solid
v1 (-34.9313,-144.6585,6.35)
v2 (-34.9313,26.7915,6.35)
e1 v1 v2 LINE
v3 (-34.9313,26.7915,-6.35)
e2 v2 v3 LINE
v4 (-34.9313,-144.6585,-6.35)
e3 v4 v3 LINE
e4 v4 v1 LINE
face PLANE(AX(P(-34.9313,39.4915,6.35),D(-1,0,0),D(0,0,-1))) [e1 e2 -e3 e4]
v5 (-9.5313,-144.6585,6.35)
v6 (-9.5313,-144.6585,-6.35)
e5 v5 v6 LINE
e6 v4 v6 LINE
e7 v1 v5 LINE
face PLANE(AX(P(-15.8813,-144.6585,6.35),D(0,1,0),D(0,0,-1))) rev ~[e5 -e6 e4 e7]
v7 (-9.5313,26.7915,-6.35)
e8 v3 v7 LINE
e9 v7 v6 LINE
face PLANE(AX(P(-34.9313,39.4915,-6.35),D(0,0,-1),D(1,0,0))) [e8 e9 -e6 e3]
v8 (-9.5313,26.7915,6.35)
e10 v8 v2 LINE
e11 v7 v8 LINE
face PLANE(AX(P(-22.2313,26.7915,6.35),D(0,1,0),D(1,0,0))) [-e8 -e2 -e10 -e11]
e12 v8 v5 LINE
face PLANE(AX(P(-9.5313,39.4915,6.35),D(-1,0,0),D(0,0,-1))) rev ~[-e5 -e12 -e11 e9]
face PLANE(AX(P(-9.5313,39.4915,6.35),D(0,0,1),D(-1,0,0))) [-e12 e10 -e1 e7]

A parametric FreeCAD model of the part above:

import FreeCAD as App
import Part
import Sketcher

V = App.Vector
Q = App.Units.Quantity


def add_polygon(sketch, points):
    """Adds a closed chain of lines whose ends are joined by coincident constraints."""
    first, n = sketch.GeometryCount, len(points)
    for a, b in zip(points, points[1:] + points[:1]):
        sketch.addGeometry(Part.LineSegment(App.Vector(*a, 0), App.Vector(*b, 0)), False)
    for i in range(n):
        sketch.addConstraint(Sketcher.Constraint("Coincident", first + i, 2, first + (i + 1) % n, 1))

doc = App.newDocument("Part")
body = doc.addObject("PartDesign::Body", "Body")

sketch1 = body.newObject("Sketcher::SketchObject", "Sketch")
sketch1.AttachmentSupport = (doc.getObject("XY_Plane"), [""])
sketch1.MapMode = "FlatFace"
add_polygon(sketch1, [(-28.5813, 39.4915), (-28.5813, 26.7915), (-41.2813, 26.7915), (-41.2813, 14.0915), (-28.5813, 14.0915), (-28.5813, -131.9585), (-41.2813, -131.9585), (-41.2813, -144.6585), (-28.5813, -144.6585), (-28.5813, -154.1835), (116.1987, -154.1835), (116.1987, -144.6585), (128.8987, -144.6585), (128.8987, -131.9585), (116.1987, -131.9585), (116.1987, 14.0915), (128.8987, 14.0915), (128.8987, 26.7915), (116.1987, 26.7915), (116.1987, 39.4915)])
sketch1.addGeometry(Part.Circle(V(-34.9313, -138.3085, 0), V(0, 0, 1), 1.9812), False)
sketch1.addGeometry(Part.Circle(V(122.5487, -138.3085, 0), V(0, 0, 1), 1.9812), False)
add_polygon(sketch1, [(-22.2313, -151.0085), (-22.2313, 26.7915), (-22.2313, 33.1415), (15.8687, 33.1415), (15.8687, 26.7915), (22.2187, 26.7915), (22.2187, 33.1415), (65.3987, 33.1415), (65.3987, 26.7915), (71.7487, 26.7915), (71.7487, 33.1415), (109.8487, 33.1415), (109.8487, -151.0085), (71.7487, -151.0085), (71.7487, -144.6585), (65.3987, -144.6585), (65.3987, -151.0085), (22.2187, -151.0085), (22.2187, -144.6585), (15.8687, -144.6585), (15.8687, -151.0085)])
sketch1.addGeometry(Part.Circle(V(-34.9313, 20.4415, 0), V(0, 0, 1), 1.9812), False)
sketch1.addGeometry(Part.Circle(V(122.5487, 20.4415, 0), V(0, 0, 1), 1.9812), False)
sketch1.addConstraint([
    Sketcher.Constraint("Vertical", 0),
    Sketcher.Constraint("Horizontal", 1),
    Sketcher.Constraint("Vertical", 2),
    Sketcher.Constraint("Horizontal", 3),
    Sketcher.Constraint("Vertical", 4),
    Sketcher.Constraint("Horizontal", 5),
    Sketcher.Constraint("Vertical", 6),
    Sketcher.Constraint("Horizontal", 7),
    Sketcher.Constraint("Vertical", 8),
    Sketcher.Constraint("Horizontal", 9),
    Sketcher.Constraint("Vertical", 10),
    Sketcher.Constraint("Horizontal", 11),
    Sketcher.Constraint("Vertical", 12),
    Sketcher.Constraint("Horizontal", 13),
    Sketcher.Constraint("Vertical", 14),
    Sketcher.Constraint("Horizontal", 15),
    Sketcher.Constraint("Vertical", 16),
    Sketcher.Constraint("Horizontal", 17),
    Sketcher.Constraint("Vertical", 18),
    Sketcher.Constraint("Horizontal", 19),
    Sketcher.Constraint("Vertical", 22),
    Sketcher.Constraint("Vertical", 23),
    Sketcher.Constraint("Horizontal", 24),
    Sketcher.Constraint("Vertical", 25),
    Sketcher.Constraint("Horizontal", 26),
    Sketcher.Constraint("Vertical", 27),
    Sketcher.Constraint("Horizontal", 28),
    Sketcher.Constraint("Vertical", 29),
    Sketcher.Constraint("Horizontal", 30),
    Sketcher.Constraint("Vertical", 31),
    Sketcher.Constraint("Horizontal", 32),
    Sketcher.Constraint("Vertical", 33),
    Sketcher.Constraint("Horizontal", 34),
    Sketcher.Constraint("Vertical", 35),
    Sketcher.Constraint("Horizontal", 36),
    Sketcher.Constraint("Vertical", 37),
    Sketcher.Constraint("Horizontal", 38),
    Sketcher.Constraint("Vertical", 39),
    Sketcher.Constraint("Horizontal", 40),
    Sketcher.Constraint("Vertical", 41),
    Sketcher.Constraint("Horizontal", 42),
    Sketcher.Constraint("Equal", 20, 21),
    Sketcher.Constraint("Equal", 21, 43),
    Sketcher.Constraint("Equal", 43, 44),
    Sketcher.Constraint("Horizontal", 20, 3, 21, 3),
    Sketcher.Constraint("Horizontal", 43, 3, 44, 3),
    Sketcher.Constraint("Horizontal", 7, 2, 10, 2),
    Sketcher.Constraint("Horizontal", 5, 2, 12, 2),
    Sketcher.Constraint("Horizontal", 3, 2, 14, 2),
    Sketcher.Constraint("Horizontal", 1, 2, 16, 2),
    Sketcher.Constraint("Horizontal", 17, 2, 22, 2),
    Sketcher.Constraint("Horizontal", 22, 2, 25, 2),
    Sketcher.Constraint("Horizontal", 24, 2, 27, 2),
    Sketcher.Constraint("Horizontal", 26, 2, 29, 2),
    Sketcher.Constraint("Horizontal", 28, 2, 31, 2),
    Sketcher.Constraint("Horizontal", 11, 2, 35, 2),
    Sketcher.Constraint("Horizontal", 34, 2, 37, 2),
    Sketcher.Constraint("Horizontal", 36, 2, 39, 2),
    Sketcher.Constraint("Horizontal", 38, 2, 41, 2),
    Sketcher.Constraint("Vertical", 20, 3, 43, 3),
    Sketcher.Constraint("Vertical", 21, 3, 44, 3),
    Sketcher.Constraint("Vertical", 0, 2, 3, 2),
    Sketcher.Constraint("Vertical", 2, 2, 5, 2),
    Sketcher.Constraint("Vertical", 4, 2, 7, 2),
    Sketcher.Constraint("Vertical", 10, 2, 13, 2),
    Sketcher.Constraint("Vertical", 12, 2, 15, 2),
    Sketcher.Constraint("Vertical", 14, 2, 17, 2),
    Sketcher.Constraint("Vertical", 31, 2, 34, 2),
    Sketcher.Constraint("Vertical", 29, 2, 36, 2),
    Sketcher.Constraint("Vertical", 27, 2, 38, 2),
    Sketcher.Constraint("Vertical", 25, 2, 40, 2),
    Sketcher.Constraint("Equal", 7, 11),
    Sketcher.Constraint("Equal", 26, 30),
    Sketcher.Constraint("Equal", 24, 32),
    Sketcher.Constraint("Equal", 17, 0),
    Sketcher.Constraint("Equal", 0, 2),
    Sketcher.Constraint("Equal", 2, 6),
    Sketcher.Constraint("Equal", 40, 23),
    Sketcher.Constraint("Equal", 31, 35),
    Sketcher.Constraint("Diameter", 20, Q("0.156 in")),
    Sketcher.Constraint("DistanceX", 1, 2, 1, 1, Q("0.5 in")),
    Sketcher.Constraint("DistanceX", 9, 1, 9, 2, Q("5.7 in")),
    Sketcher.Constraint("DistanceX", 24, 1, 24, 2, Q("1.5 in")),
    Sketcher.Constraint("DistanceX", 26, 1, 26, 2, Q("0.25 in")),
    Sketcher.Constraint("DistanceY", 4, 2, 4, 1, Q("5.75 in")),
    Sketcher.Constraint("DistanceX", 43, 3, 22, 2, Q("0.5 in")),
    Sketcher.Constraint("DistanceY", 43, 3, 23, 2, Q("0.5 in")),
    Sketcher.Constraint("DistanceX", 32, 2, 44, 3, Q("0.5 in")),
    Sketcher.Constraint("DistanceY", 33, 2, 21, 3, Q("0.5 in")),
    Sketcher.Constraint("DistanceY", 8, 2, 8, 1, Q("0.375 in")),
    Sketcher.Constraint("DistanceX", 43, 3, 0, 2, Q("0.25 in")),
    Sketcher.Constraint("DistanceX", 9, 2, 21, 3, Q("0.25 in")),
    Sketcher.Constraint("DistanceX", 20, 3, -1, 1, 34.9313),
    Sketcher.Constraint("DistanceY", 20, 3, -1, 1, 138.3085),
])
pad1 = body.newObject("PartDesign::Pad", "Pad")
pad1.Profile = sketch1
pad1.Length = Q("0.25 in")

sketch2 = body.newObject("Sketcher::SketchObject", "Sketch001")
sketch2.AttachmentSupport = (doc.getObject("XZ_Plane"), [""])
sketch2.MapMode = "FlatFace"
sketch2.AttachmentOffset = App.Placement(V(0, 0, 154.1835), App.Rotation())
add_polygon(sketch2, [(116.1987, 0), (116.1987, 6.35), (-28.5813, 6.35), (-28.5813, 0)])
sketch2.addConstraint([
    Sketcher.Constraint("Vertical", 0),
    Sketcher.Constraint("Horizontal", 1),
    Sketcher.Constraint("Vertical", 2),
    Sketcher.Constraint("Horizontal", 3),
    Sketcher.Constraint("PointOnObject", 2, 2, -1),
    Sketcher.Constraint("DistanceX", 1, 2, 1, 1, Q("5.7 in")),
    Sketcher.Constraint("DistanceY", 0, 1, 0, 2, Q("0.25 in")),
    Sketcher.Constraint("DistanceX", -1, 1, 0, 2, 116.1987),
])
pad2 = body.newObject("PartDesign::Pad", "Pad001")
pad2.Profile = sketch2
pad2.Length = Q("0.125 in")

sketch3 = body.newObject("Sketcher::SketchObject", "Sketch002")
sketch3.AttachmentSupport = (doc.getObject("XY_Plane"), [""])
sketch3.MapMode = "FlatFace"
sketch3.AttachmentOffset = App.Placement(V(0, 0, 0.25 * 25.4), App.Rotation())
add_polygon(sketch3, [(-28.5813, -131.9585), (-28.5813, 14.0915), (-41.2813, 14.0915), (-41.2813, -131.9585)])
add_polygon(sketch3, [(116.1987, 14.0915), (116.1987, -131.9585), (128.8987, -131.9585), (128.8987, 14.0915)])
sketch3.addConstraint([
    Sketcher.Constraint("Vertical", 0),
    Sketcher.Constraint("Horizontal", 1),
    Sketcher.Constraint("Vertical", 2),
    Sketcher.Constraint("Horizontal", 3),
    Sketcher.Constraint("Vertical", 4),
    Sketcher.Constraint("Horizontal", 5),
    Sketcher.Constraint("Vertical", 6),
    Sketcher.Constraint("Horizontal", 7),
    Sketcher.Constraint("Horizontal", 3, 2, 4, 2),
    Sketcher.Constraint("Horizontal", 1, 2, 6, 2),
    Sketcher.Constraint("Equal", 3, 5),
    Sketcher.Constraint("DistanceX", 1, 2, 1, 1, Q("0.5 in")),
    Sketcher.Constraint("DistanceY", 0, 1, 0, 2, Q("5.75 in")),
    Sketcher.Constraint("DistanceX", 3, 2, 4, 2, Q("5.7 in")),
    Sketcher.Constraint("DistanceX", 0, 2, -1, 1, 28.5813),
    Sketcher.Constraint("DistanceY", -1, 1, 0, 2, 14.0915),
])
pad3 = body.newObject("PartDesign::Pad", "Pad002")
pad3.Profile = sketch3
pad3.Length = Q("0.25 in")
pad3.Reversed = True

sketch4 = body.newObject("Sketcher::SketchObject", "Sketch003")
sketch4.AttachmentSupport = (doc.getObject("XY_Plane"), [""])
sketch4.MapMode = "FlatFace"
sketch4.AttachmentOffset = App.Placement(V(0, 0, 0.25 * 25.4), App.Rotation())
add_polygon(sketch4, [(-41.2813, -157.3585), (-28.5813, -157.3585), (-28.5813, -151.0085), (-41.2813, -151.0085)])
add_polygon(sketch4, [(116.1987, -151.0085), (116.1987, -157.3585), (128.8987, -157.3585), (128.8987, -151.0085)])
add_polygon(sketch4, [(109.8487, 20.4415), (109.8487, 26.7915), (-22.2313, 26.7915), (-22.2313, 20.4415)])
add_polygon(sketch4, [(109.8487, -144.6585), (109.8487, -138.3085), (-22.2313, -138.3085), (-22.2313, -144.6585)])
sketch4.addConstraint([
    Sketcher.Constraint("Horizontal", 0),
    Sketcher.Constraint("Vertical", 1),
    Sketcher.Constraint("Horizontal", 2),
    Sketcher.Constraint("Vertical", 3),
    Sketcher.Constraint("Vertical", 4),
    Sketcher.Constraint("Horizontal", 5),
    Sketcher.Constraint("Vertical", 6),
    Sketcher.Constraint("Horizontal", 7),
    Sketcher.Constraint("Vertical", 8),
    Sketcher.Constraint("Horizontal", 9),
    Sketcher.Constraint("Vertical", 10),
    Sketcher.Constraint("Horizontal", 11),
    Sketcher.Constraint("Vertical", 12),
    Sketcher.Constraint("Horizontal", 13),
    Sketcher.Constraint("Vertical", 14),
    Sketcher.Constraint("Horizontal", 15),
    Sketcher.Constraint("Horizontal", 3, 2, 4, 2),
    Sketcher.Constraint("Horizontal", 2, 2, 6, 2),
    Sketcher.Constraint("Vertical", 11, 2, 12, 2),
    Sketcher.Constraint("Vertical", 10, 2, 13, 2),
    Sketcher.Constraint("Equal", 2, 5),
    Sketcher.Constraint("Equal", 6, 8),
    Sketcher.Constraint("Equal", 10, 12),
    Sketcher.Constraint("DistanceX", 0, 1, 0, 2, Q("0.5 in")),
    Sketcher.Constraint("DistanceX", 9, 2, 9, 1, Q("5.2 in")),
    Sketcher.Constraint("DistanceY", 7, 2, 8, 2, Q("7 in")),
    Sketcher.Constraint("DistanceY", 1, 1, 1, 2, Q("0.25 in")),
    Sketcher.Constraint("DistanceX", 0, 2, 4, 2, Q("5.7 in")),
    Sketcher.Constraint("DistanceY", 7, 2, 12, 2, Q("0.5 in")),
    Sketcher.Constraint("DistanceX", 8, 2, 7, 2, Q("0.25 in")),
    Sketcher.Constraint("DistanceX", 0, 2, -1, 1, 28.5813),
    Sketcher.Constraint("DistanceY", 0, 2, -1, 1, 157.3585),
])
pad4 = body.newObject("PartDesign::Pad", "Pad003")
pad4.Profile = sketch4
pad4.Length = Q("0.25 in")
pad4.Reversed = True

sketch5 = body.newObject("Sketcher::SketchObject", "Sketch004")
sketch5.AttachmentSupport = (doc.getObject("XY_Plane"), [""])
sketch5.MapMode = "FlatFace"
sketch5.AttachmentOffset = App.Placement(V(0, 0, 0.25 * 25.4), App.Rotation())
add_polygon(sketch5, [(-41.2813, 33.1415), (-28.5813, 33.1415), (-28.5813, 39.4915), (-41.2813, 39.4915)])
add_polygon(sketch5, [(128.8987, 39.4915), (116.1987, 39.4915), (116.1987, 33.1415), (128.8987, 33.1415)])
sketch5.addConstraint([
    Sketcher.Constraint("Horizontal", 0),
    Sketcher.Constraint("Vertical", 1),
    Sketcher.Constraint("Horizontal", 2),
    Sketcher.Constraint("Vertical", 3),
    Sketcher.Constraint("Horizontal", 4),
    Sketcher.Constraint("Vertical", 5),
    Sketcher.Constraint("Horizontal", 6),
    Sketcher.Constraint("Vertical", 7),
    Sketcher.Constraint("Horizontal", 2, 2, 4, 2),
    Sketcher.Constraint("Horizontal", 3, 2, 5, 2),
    Sketcher.Constraint("Equal", 2, 4),
    Sketcher.Constraint("DistanceX", 0, 1, 0, 2, Q("0.5 in")),
    Sketcher.Constraint("DistanceY", 1, 1, 1, 2, Q("0.25 in")),
    Sketcher.Constraint("DistanceX", 1, 2, 4, 2, Q("5.7 in")),
    Sketcher.Constraint("DistanceX", 0, 2, -1, 1, 28.5813),
    Sketcher.Constraint("DistanceY", -1, 1, 0, 2, 33.1415),
])
pad5 = body.newObject("PartDesign::Pad", "Pad004")
pad5.Profile = sketch5
pad5.Length = Q("0.25 in")
pad5.Reversed = True

sketch6 = body.newObject("Sketcher::SketchObject", "Sketch005")
sketch6.AttachmentSupport = (doc.getObject("XY_Plane"), [""])
sketch6.MapMode = "FlatFace"
sketch6.AttachmentOffset = App.Placement(V(0, 0, 0.25 * 25.4), App.Rotation())
add_polygon(sketch6, [(59.0487, -151.0085), (78.0987, -151.0085), (78.0987, -144.6585), (59.0487, -144.6585)])
add_polygon(sketch6, [(10.0792, -151.0085), (28.5687, -151.0085), (28.5687, -144.6585), (10.0792, -144.6585)])
add_polygon(sketch6, [(22.2187, 26.7915), (28.5687, 26.7915), (28.5687, 33.1415), (22.2187, 33.1415)])
add_polygon(sketch6, [(59.0487, 26.7915), (65.3987, 26.7915), (65.3987, 33.1415), (59.0487, 33.1415)])
add_polygon(sketch6, [(71.7487, 26.7915), (78.0987, 26.7915), (78.0987, 33.1415), (71.7487, 33.1415)])
add_polygon(sketch6, [(-34.9313, 33.1415), (-34.9313, 26.7915), (-28.5813, 26.7915), (-28.5813, 33.1415)])
add_polygon(sketch6, [(-34.9313, -151.0085), (-28.5813, -151.0085), (-28.5813, -144.6585), (-34.9313, -144.6585)])
add_polygon(sketch6, [(116.1987, -151.0085), (122.5487, -151.0085), (122.5487, -144.6585), (116.1987, -144.6585)])
add_polygon(sketch6, [(116.1987, 33.1415), (116.1987, 26.7915), (122.5487, 26.7915), (122.5487, 33.1415)])
add_polygon(sketch6, [(15.8687, 26.7915), (15.8687, 33.1415), (10.0792, 33.1415), (10.0792, 26.7915)])
sketch6.addConstraint([
    Sketcher.Constraint("Horizontal", 0),
    Sketcher.Constraint("Vertical", 1),
    Sketcher.Constraint("Horizontal", 2),
    Sketcher.Constraint("Vertical", 3),
    Sketcher.Constraint("Horizontal", 4),
    Sketcher.Constraint("Vertical", 5),
    Sketcher.Constraint("Horizontal", 6),
    Sketcher.Constraint("Vertical", 7),
    Sketcher.Constraint("Horizontal", 8),
    Sketcher.Constraint("Vertical", 9),
    Sketcher.Constraint("Horizontal", 10),
    Sketcher.Constraint("Vertical", 11),
    Sketcher.Constraint("Horizontal", 12),
    Sketcher.Constraint("Vertical", 13),
    Sketcher.Constraint("Horizontal", 14),
    Sketcher.Constraint("Vertical", 15),
    Sketcher.Constraint("Horizontal", 16),
    Sketcher.Constraint("Vertical", 17),
    Sketcher.Constraint("Horizontal", 18),
    Sketcher.Constraint("Vertical", 19),
    Sketcher.Constraint("Vertical", 20),
    Sketcher.Constraint("Horizontal", 21),
    Sketcher.Constraint("Vertical", 22),
    Sketcher.Constraint("Horizontal", 23),
    Sketcher.Constraint("Horizontal", 24),
    Sketcher.Constraint("Vertical", 25),
    Sketcher.Constraint("Horizontal", 26),
    Sketcher.Constraint("Vertical", 27),
    Sketcher.Constraint("Horizontal", 28),
    Sketcher.Constraint("Vertical", 29),
    Sketcher.Constraint("Horizontal", 30),
    Sketcher.Constraint("Vertical", 31),
    Sketcher.Constraint("Vertical", 32),
    Sketcher.Constraint("Horizontal", 33),
    Sketcher.Constraint("Vertical", 34),
    Sketcher.Constraint("Horizontal", 35),
    Sketcher.Constraint("Vertical", 36),
    Sketcher.Constraint("Horizontal", 37),
    Sketcher.Constraint("Vertical", 38),
    Sketcher.Constraint("Horizontal", 39),
    Sketcher.Constraint("Horizontal", 3, 2, 4, 2),
    Sketcher.Constraint("Horizontal", 2, 2, 5, 2),
    Sketcher.Constraint("Horizontal", 11, 2, 12, 2),
    Sketcher.Constraint("Horizontal", 10, 2, 13, 2),
    Sketcher.Constraint("Horizontal", 15, 2, 16, 2),
    Sketcher.Constraint("Horizontal", 14, 2, 17, 2),
    Sketcher.Constraint("Horizontal", 19, 2, 20, 2),
    Sketcher.Constraint("Horizontal", 18, 2, 22, 2),
    Sketcher.Constraint("Horizontal", 7, 2, 24, 2),
    Sketcher.Constraint("Horizontal", 6, 2, 25, 2),
    Sketcher.Constraint("Horizontal", 27, 2, 28, 2),
    Sketcher.Constraint("Horizontal", 26, 2, 29, 2),
    Sketcher.Constraint("Horizontal", 21, 2, 32, 2),
    Sketcher.Constraint("Horizontal", 23, 2, 34, 2),
    Sketcher.Constraint("Horizontal", 35, 2, 36, 2),
    Sketcher.Constraint("Horizontal", 33, 2, 38, 2),
    Sketcher.Constraint("Vertical", 5, 2, 8, 2),
    Sketcher.Constraint("Vertical", 3, 2, 14, 2),
    Sketcher.Constraint("Vertical", 1, 2, 16, 2),
    Sketcher.Constraint("Vertical", 22, 2, 24, 2),
    Sketcher.Constraint("Vertical", 23, 2, 26, 2),
    Sketcher.Constraint("Vertical", 31, 2, 32, 2),
    Sketcher.Constraint("Vertical", 29, 2, 33, 2),
    Sketcher.Constraint("Vertical", 7, 2, 37, 2),
    Sketcher.Constraint("Equal", 10, 12),
    Sketcher.Constraint("Equal", 14, 16),
    Sketcher.Constraint("Equal", 18, 21),
    Sketcher.Constraint("Equal", 26, 28),
    Sketcher.Constraint("Equal", 35, 1),
    Sketcher.Constraint("Equal", 7, 9),
    Sketcher.Constraint("DistanceX", 8, 1, 8, 2, Q("0.25 in")),
    Sketcher.Constraint("DistanceX", 13, 2, 18, 2, Q("0.25 in")),
    Sketcher.Constraint("DistanceX", 36, 2, 10, 2, Q("0.25 in")),
    Sketcher.Constraint("DistanceY", 4, 2, 8, 2, Q("7 in")),
    Sketcher.Constraint("DistanceX", 21, 2, 11, 2, Q("2 in")),
    Sketcher.Constraint("DistanceX", 12, 2, 32, 2, Q("2 in")),
    Sketcher.Constraint("DistanceX", 4, 2, 3, 2, Q("1.2 in")),
    Sketcher.Constraint("DistanceX", 4, 1, 4, 2, 18.4895),
    Sketcher.Constraint("DistanceX", -1, 1, 0, 2, 78.0987),
    Sketcher.Constraint("DistanceY", 0, 2, -1, 1, 151.0085),
])
pad6 = body.newObject("PartDesign::Pad", "Pad005")
pad6.Profile = sketch6
pad6.Length = Q("0.25 in")
pad6.Reversed = True

sketch7 = body.newObject("Sketcher::SketchObject", "Sketch006")
sketch7.AttachmentSupport = (doc.getObject("XY_Plane"), [""])
sketch7.MapMode = "FlatFace"
add_polygon(sketch7, [(128.8987, 115.6915), (128.8987, 39.4915), (-41.2813, 39.4915), (-41.2813, 64.8915), (90.7987, 64.8915), (90.7987, 115.6915)])
sketch7.addConstraint([
    Sketcher.Constraint("Vertical", 0),
    Sketcher.Constraint("Horizontal", 1),
    Sketcher.Constraint("Vertical", 2),
    Sketcher.Constraint("Horizontal", 3),
    Sketcher.Constraint("Vertical", 4),
    Sketcher.Constraint("Horizontal", 5),
    Sketcher.Constraint("DistanceY", 0, 2, 0, 1, Q("3 in")),
    Sketcher.Constraint("DistanceY", 2, 1, 2, 2, Q("1 in")),
    Sketcher.Constraint("DistanceX", 5, 1, 5, 2, Q("1.5 in")),
    Sketcher.Constraint("DistanceX", 1, 2, 1, 1, Q("6.7 in")),
    Sketcher.Constraint("DistanceX", -1, 1, 0, 2, 128.8987),
    Sketcher.Constraint("DistanceY", -1, 1, 0, 2, 39.4915),
])
pad7 = body.newObject("PartDesign::Pad", "Pad006")
pad7.Profile = sketch7
pad7.Length = Q("0.25 in")

sketch8 = body.newObject("Sketcher::SketchObject", "Sketch007")
sketch8.AttachmentSupport = (doc.getObject("XY_Plane"), [""])
sketch8.MapMode = "FlatFace"
add_polygon(sketch8, [(-172.0913, 64.8915), (-41.2813, 64.8915), (-41.2813, 39.4915), (-210.1913, 39.4915), (-210.1913, 115.6915), (-172.0913, 115.6915)])
sketch8.addConstraint([
    Sketcher.Constraint("Horizontal", 0),
    Sketcher.Constraint("Vertical", 1),
    Sketcher.Constraint("Horizontal", 2),
    Sketcher.Constraint("Vertical", 3),
    Sketcher.Constraint("Horizontal", 4),
    Sketcher.Constraint("Vertical", 5),
    Sketcher.Constraint("DistanceY", 1, 2, 1, 1, Q("1 in")),
    Sketcher.Constraint("DistanceX", 4, 1, 4, 2, Q("1.5 in")),
    Sketcher.Constraint("DistanceX", 2, 2, 2, 1, Q("6.65 in")),
    Sketcher.Constraint("DistanceY", 3, 1, 3, 2, Q("3 in")),
    Sketcher.Constraint("DistanceX", 0, 2, -1, 1, 41.2813),
    Sketcher.Constraint("DistanceY", -1, 1, 0, 2, 64.8915),
])
pad8 = body.newObject("PartDesign::Pad", "Pad007")
pad8.Profile = sketch8
pad8.Length = Q("0.25 in")

sketch9 = body.newObject("Sketcher::SketchObject", "Sketch008")
sketch9.AttachmentSupport = (doc.getObject("XY_Plane"), [""])
sketch9.MapMode = "FlatFace"
add_polygon(sketch9, [(128.8987, 26.7915), (-41.2813, 26.7915), (-41.2813, 49.764), (128.8987, 49.764)])
sketch9.addConstraint([
    Sketcher.Constraint("Horizontal", 0),
    Sketcher.Constraint("Vertical", 1),
    Sketcher.Constraint("Horizontal", 2),
    Sketcher.Constraint("Vertical", 3),
    Sketcher.Constraint("DistanceX", 0, 2, 0, 1, Q("6.7 in")),
    Sketcher.Constraint("DistanceY", 1, 1, 1, 2, 22.9725),
    Sketcher.Constraint("DistanceX", 0, 2, -1, 1, 41.2813),
    Sketcher.Constraint("DistanceY", -1, 1, 0, 2, 26.7915),
])
pad9 = body.newObject("PartDesign::Pad", "Pad008")
pad9.Profile = sketch9
pad9.Length = Q("0.25 in")

sketch10 = body.newObject("Sketcher::SketchObject", "Sketch009")
sketch10.AttachmentSupport = (doc.getObject("XY_Plane"), [""])
sketch10.MapMode = "FlatFace"
add_polygon(sketch10, [(-210.1913, 39.4915), (-41.2813, 39.4915), (-41.2813, 20.4415), (-210.1913, 20.4415)])
sketch10.addConstraint([
    Sketcher.Constraint("Horizontal", 0),
    Sketcher.Constraint("Vertical", 1),
    Sketcher.Constraint("Horizontal", 2),
    Sketcher.Constraint("Vertical", 3),
    Sketcher.Constraint("DistanceX", 0, 1, 0, 2, Q("6.65 in")),
    Sketcher.Constraint("DistanceY", 1, 2, 1, 1, Q("0.75 in")),
    Sketcher.Constraint("DistanceX", 0, 2, -1, 1, 41.2813),
    Sketcher.Constraint("DistanceY", -1, 1, 0, 2, 39.4915),
])
pad10 = body.newObject("PartDesign::Pad", "Pad009")
pad10.Profile = sketch10
pad10.Length = Q("0.25 in")

sketch11 = body.newObject("Sketcher::SketchObject", "Sketch010")
sketch11.AttachmentSupport = (doc.getObject("XY_Plane"), [""])
sketch11.MapMode = "FlatFace"
add_polygon(sketch11, [(128.8987, 141.0915), (128.8987, 115.6915), (90.7987, 115.6915), (90.7987, 141.0915)])
add_polygon(sketch11, [(-172.0913, 141.0915), (-172.0913, 115.6915), (-210.1913, 115.6915), (-210.1913, 141.0915)])
sketch11.addConstraint([
    Sketcher.Constraint("Vertical", 0),
    Sketcher.Constraint("Horizontal", 1),
    Sketcher.Constraint("Vertical", 2),
    Sketcher.Constraint("Horizontal", 3),
    Sketcher.Constraint("Vertical", 4),
    Sketcher.Constraint("Horizontal", 5),
    Sketcher.Constraint("Vertical", 6),
    Sketcher.Constraint("Horizontal", 7),
    Sketcher.Constraint("Horizontal", 1, 2, 4, 2),
    Sketcher.Constraint("Horizontal", 3, 2, 6, 2),
    Sketcher.Constraint("Equal", 3, 5),
    Sketcher.Constraint("DistanceY", 0, 2, 0, 1, Q("1 in")),
    Sketcher.Constraint("DistanceX", 1, 2, 1, 1, Q("1.5 in")),
    Sketcher.Constraint("DistanceX", 4, 2, 1, 2, Q("10.35 in")),
    Sketcher.Constraint("DistanceX", -1, 1, 0, 2, 128.8987),
    Sketcher.Constraint("DistanceY", -1, 1, 0, 2, 115.6915),
])
pad11 = body.newObject("PartDesign::Pad", "Pad010")
pad11.Profile = sketch11
pad11.Length = Q("0.25 in")

sketch12 = body.newObject("Sketcher::SketchObject", "Sketch011")
sketch12.AttachmentSupport = (doc.getObject("XY_Plane"), [""])
sketch12.MapMode = "FlatFace"
add_polygon(sketch12, [(81.9087, 33.1415), (56.5087, 33.1415), (56.5087, 38.8107), (81.9087, 38.8107)])
add_polygon(sketch12, [(5.7087, 33.1415), (-19.6913, 33.1415), (-19.6913, 39.4915), (5.7087, 39.4915)])
add_polygon(sketch12, [(-146.6913, 33.1415), (-172.0913, 33.1415), (-172.0913, 39.4915), (-146.6913, 39.4915)])
add_polygon(sketch12, [(-108.5913, 26.7915), (-133.9913, 26.7915), (-133.9913, 33.1415), (-108.5913, 33.1415)])
add_polygon(sketch12, [(-95.8913, 33.1415), (-95.8913, 39.4915), (-70.4913, 39.4915), (-70.4913, 33.1415)])
add_polygon(sketch12, [(-57.7913, 26.7915), (-57.7913, 33.1415), (-32.3913, 33.1415), (-32.3913, 26.7915)])
add_polygon(sketch12, [(18.4087, 26.7915), (18.4087, 33.1415), (43.8087, 33.1415), (43.8087, 26.7915)])
add_polygon(sketch12, [(94.6087, 26.7915), (94.6087, 33.1415), (120.0087, 33.1415), (120.0087, 26.7915)])
sketch12.addConstraint([
    Sketcher.Constraint("Horizontal", 0),
    Sketcher.Constraint("Vertical", 1),
    Sketcher.Constraint("Horizontal", 2),
    Sketcher.Constraint("Vertical", 3),
    Sketcher.Constraint("Horizontal", 4),
    Sketcher.Constraint("Vertical", 5),
    Sketcher.Constraint("Horizontal", 6),
    Sketcher.Constraint("Vertical", 7),
    Sketcher.Constraint("Horizontal", 8),
    Sketcher.Constraint("Vertical", 9),
    Sketcher.Constraint("Horizontal", 10),
    Sketcher.Constraint("Vertical", 11),
    Sketcher.Constraint("Horizontal", 12),
    Sketcher.Constraint("Vertical", 13),
    Sketcher.Constraint("Horizontal", 14),
    Sketcher.Constraint("Vertical", 15),
    Sketcher.Constraint("Vertical", 16),
    Sketcher.Constraint("Horizontal", 17),
    Sketcher.Constraint("Vertical", 18),
    Sketcher.Constraint("Horizontal", 19),
    Sketcher.Constraint("Vertical", 20),
    Sketcher.Constraint("Horizontal", 21),
    Sketcher.Constraint("Vertical", 22),
    Sketcher.Constraint("Horizontal", 23),
    Sketcher.Constraint("Vertical", 24),
    Sketcher.Constraint("Horizontal", 25),
    Sketcher.Constraint("Vertical", 26),
    Sketcher.Constraint("Horizontal", 27),
    Sketcher.Constraint("Vertical", 28),
    Sketcher.Constraint("Horizontal", 29),
    Sketcher.Constraint("Vertical", 30),
    Sketcher.Constraint("Horizontal", 31),
    Sketcher.Constraint("Horizontal", 3, 2, 4, 2),
    Sketcher.Constraint("Horizontal", 7, 2, 8, 2),
    Sketcher.Constraint("Horizontal", 6, 2, 9, 2),
    Sketcher.Constraint("Horizontal", 11, 2, 13, 2),
    Sketcher.Constraint("Horizontal", 10, 2, 16, 2),
    Sketcher.Constraint("Horizontal", 14, 2, 18, 2),
    Sketcher.Constraint("Horizontal", 19, 2, 20, 2),
    Sketcher.Constraint("Horizontal", 15, 2, 22, 2),
    Sketcher.Constraint("Horizontal", 21, 2, 24, 2),
    Sketcher.Constraint("Horizontal", 23, 2, 26, 2),
    Sketcher.Constraint("Horizontal", 25, 2, 28, 2),
    Sketcher.Constraint("Horizontal", 27, 2, 30, 2),
    Sketcher.Constraint("Equal", 2, 4),
    Sketcher.Constraint("Equal", 6, 8),
    Sketcher.Constraint("Equal", 10, 12),
    Sketcher.Constraint("Equal", 14, 17),
    Sketcher.Constraint("Equal", 19, 21),
    Sketcher.Constraint("Equal", 23, 25),
    Sketcher.Constraint("Equal", 27, 29),
    Sketcher.Constraint("Equal", 11, 13),
    Sketcher.Constraint("DistanceX", 0, 2, 0, 1, Q("1 in")),
    Sketcher.Constraint("DistanceX", 6, 2, 1, 2, Q("2 in")),
    Sketcher.Constraint("DistanceX", 10, 2, 16, 2, Q("2 in")),
    Sketcher.Constraint("DistanceX", 17, 2, 5, 2, Q("2 in")),
    Sketcher.Constraint("DistanceX", 25, 2, 28, 2, Q("2 in")),
    Sketcher.Constraint("DistanceY", 5, 1, 5, 2, Q("0.25 in")),
    Sketcher.Constraint("DistanceX", 11, 2, 12, 2, Q("0.5 in")),
    Sketcher.Constraint("DistanceX", 18, 2, 20, 2, Q("0.5 in")),
    Sketcher.Constraint("DistanceX", 7, 2, 24, 2, Q("0.5 in")),
    Sketcher.Constraint("DistanceY", 1, 1, 1, 2, Q("0.2232 in")),
    Sketcher.Constraint("DistanceX", -1, 1, 0, 2, 56.5087),
    Sketcher.Constraint("DistanceY", -1, 1, 0, 2, 33.1415),
])
pocket1 = body.newObject("PartDesign::Pocket", "Pocket")
pocket1.Profile = sketch12
pocket1.Length = Q("0.25 in")
pocket1.Reversed = True

sketch13 = body.newObject("Sketcher::SketchObject", "Sketch012")
sketch13.AttachmentSupport = (doc.getObject("XY_Plane"), [""])
sketch13.MapMode = "FlatFace"
add_polygon(sketch13, [(-203.8413, 20.4415), (-210.1913, 20.4415), (-210.1913, 64.8915), (-203.8413, 64.8915)])
add_polygon(sketch13, [(-203.8413, 90.2915), (-210.1913, 90.2915), (-210.1913, 115.6915), (-203.8413, 115.6915)])
sketch13.addConstraint([
    Sketcher.Constraint("Horizontal", 0),
    Sketcher.Constraint("Vertical", 1),
    Sketcher.Constraint("Horizontal", 2),
    Sketcher.Constraint("Vertical", 3),
    Sketcher.Constraint("Horizontal", 4),
    Sketcher.Constraint("Vertical", 5),
    Sketcher.Constraint("Horizontal", 6),
    Sketcher.Constraint("Vertical", 7),
    Sketcher.Constraint("Vertical", 1, 2, 4, 2),
    Sketcher.Constraint("Vertical", 3, 2, 6, 2),
    Sketcher.Constraint("DistanceY", 5, 1, 5, 2, Q("1 in")),
    Sketcher.Constraint("DistanceY", 1, 2, 4, 2, Q("1 in")),
    Sketcher.Constraint("DistanceX", 0, 2, 0, 1, Q("0.25 in")),
    Sketcher.Constraint("DistanceY", 1, 1, 1, 2, Q("1.75 in")),
    Sketcher.Constraint("DistanceX", 0, 2, -1, 1, 210.1913),
    Sketcher.Constraint("DistanceY", -1, 1, 0, 2, 20.4415),
])
pocket2 = body.newObject("PartDesign::Pocket", "Pocket001")
pocket2.Profile = sketch13
pocket2.Length = Q("0.25 in")
pocket2.Reversed = True

sketch14 = body.newObject("Sketcher::SketchObject", "Sketch013")
sketch14.AttachmentSupport = (doc.getObject("XY_Plane"), [""])
sketch14.MapMode = "FlatFace"
add_polygon(sketch14, [(128.8987, 115.6915), (90.7987, 115.6915), (90.7987, 141.0915), (128.8987, 141.0915)])
add_polygon(sketch14, [(122.5487, 90.2915), (128.8987, 90.2915), (128.8987, 64.8915), (122.5487, 64.8915)])
add_polygon(sketch14, [(-210.1913, 141.0915), (-172.0913, 141.0915), (-172.0913, 115.6915), (-210.1913, 115.6915)])
sketch14.addConstraint([
    Sketcher.Constraint("Horizontal", 0),
    Sketcher.Constraint("Vertical", 1),
    Sketcher.Constraint("Horizontal", 2),
    Sketcher.Constraint("Vertical", 3),
    Sketcher.Constraint("Horizontal", 4),
    Sketcher.Constraint("Vertical", 5),
    Sketcher.Constraint("Horizontal", 6),
    Sketcher.Constraint("Vertical", 7),
    Sketcher.Constraint("Horizontal", 8),
    Sketcher.Constraint("Vertical", 9),
    Sketcher.Constraint("Horizontal", 10),
    Sketcher.Constraint("Vertical", 11),
    Sketcher.Constraint("Horizontal", 2, 2, 8, 2),
    Sketcher.Constraint("Horizontal", 3, 2, 9, 2),
    Sketcher.Constraint("Vertical", 3, 2, 4, 2),
    Sketcher.Constraint("Equal", 2, 8),
    Sketcher.Constraint("Equal", 3, 5),
    Sketcher.Constraint("DistanceY", 1, 1, 1, 2, Q("1 in")),
    Sketcher.Constraint("DistanceX", 0, 2, 0, 1, Q("1.5 in")),
    Sketcher.Constraint("DistanceY", 4, 2, 3, 2, Q("1 in")),
    Sketcher.Constraint("DistanceX", 4, 1, 4, 2, Q("0.25 in")),
    Sketcher.Constraint("DistanceX", 8, 2, 7, 2, Q("11.6 in")),
    Sketcher.Constraint("DistanceX", -1, 1, 0, 2, 90.7987),
    Sketcher.Constraint("DistanceY", -1, 1, 0, 2, 115.6915),
])
pocket3 = body.newObject("PartDesign::Pocket", "Pocket002")
pocket3.Profile = sketch14
pocket3.Length = Q("0.25 in")
pocket3.Reversed = True

sketch15 = body.newObject("Sketcher::SketchObject", "Sketch014")
sketch15.AttachmentSupport = (doc.getObject("XY_Plane"), [""])
sketch15.MapMode = "FlatFace"
add_polygon(sketch15, [(-197.4913, 26.7915), (-203.8413, 26.7915), (-203.8413, 39.4915), (-197.4913, 39.4915)])
sketch15.addConstraint([
    Sketcher.Constraint("Horizontal", 0),
    Sketcher.Constraint("Vertical", 1),
    Sketcher.Constraint("Horizontal", 2),
    Sketcher.Constraint("Vertical", 3),
    Sketcher.Constraint("DistanceX", 0, 2, 0, 1, Q("0.25 in")),
    Sketcher.Constraint("DistanceY", 1, 1, 1, 2, Q("0.5 in")),
    Sketcher.Constraint("DistanceX", 0, 2, -1, 1, 203.8413),
    Sketcher.Constraint("DistanceY", -1, 1, 0, 2, 26.7915),
])
pocket4 = body.newObject("PartDesign::Pocket", "Pocket003")
pocket4.Profile = sketch15
pocket4.Length = Q("0.25 in")
pocket4.Reversed = True

sketch16 = body.newObject("Sketcher::SketchObject", "Sketch015")
sketch16.AttachmentSupport = (doc.getObject("XY_Plane"), [""])
sketch16.MapMode = "FlatFace"
sketch16.addGeometry([
    Part.Circle(V(109.8487, 77.5915, 0), V(0, 0, 1), 1.9812),
    Part.Circle(V(-191.1413, 83.9415, 0), V(0, 0, 1), 1.9812),
], False)
sketch16.addConstraint([
    Sketcher.Constraint("Equal", 0, 1),
    Sketcher.Constraint("Diameter", 0, Q("0.156 in")),
    Sketcher.Constraint("DistanceX", 1, 3, 0, 3, Q("11.85 in")),
    Sketcher.Constraint("DistanceY", 0, 3, 1, 3, Q("0.25 in")),
    Sketcher.Constraint("DistanceX", -1, 1, 0, 3, 109.8487),
    Sketcher.Constraint("DistanceY", -1, 1, 0, 3, 77.5915),
])
pocket5 = body.newObject("PartDesign::Pocket", "Pocket004")
pocket5.Profile = sketch16
pocket5.Length = Q("0.25 in")
pocket5.Reversed = True

sketch17 = body.newObject("Sketcher::SketchObject", "Sketch016")
sketch17.AttachmentSupport = (doc.getObject("XY_Plane"), [""])
sketch17.MapMode = "FlatFace"
add_polygon(sketch17, [(122.5487, 64.8915), (122.5487, 90.2915), (128.8987, 90.2915), (128.8987, 64.8915)])
sketch17.addConstraint([
    Sketcher.Constraint("Vertical", 0),
    Sketcher.Constraint("Horizontal", 1),
    Sketcher.Constraint("Vertical", 2),
    Sketcher.Constraint("Horizontal", 3),
    Sketcher.Constraint("DistanceY", 0, 1, 0, 2, Q("1 in")),
    Sketcher.Constraint("DistanceX", 1, 1, 1, 2, Q("0.25 in")),
    Sketcher.Constraint("DistanceX", -1, 1, 0, 2, 122.5487),
    Sketcher.Constraint("DistanceY", -1, 1, 0, 2, 90.2915),
])
pad12 = body.newObject("PartDesign::Pad", "Pad011")
pad12.Profile = sketch17
pad12.Length = Q("0.25 in")

sketch18 = body.newObject("Sketcher::SketchObject", "Sketch017")
sketch18.AttachmentSupport = (doc.getObject("XY_Plane"), [""])
sketch18.MapMode = "FlatFace"
add_polygon(sketch18, [(128.8987, 64.8915), (128.8987, 39.4915), (122.5487, 39.4915), (122.5487, 64.8915)])
add_polygon(sketch18, [(128.8987, 115.6915), (128.8987, 90.2915), (122.5487, 90.2915), (122.5487, 115.6915)])
sketch18.addConstraint([
    Sketcher.Constraint("Vertical", 0),
    Sketcher.Constraint("Horizontal", 1),
    Sketcher.Constraint("Vertical", 2),
    Sketcher.Constraint("Horizontal", 3),
    Sketcher.Constraint("Vertical", 4),
    Sketcher.Constraint("Horizontal", 5),
    Sketcher.Constraint("Vertical", 6),
    Sketcher.Constraint("Horizontal", 7),
    Sketcher.Constraint("Vertical", 3, 2, 4, 2),
    Sketcher.Constraint("Vertical", 2, 2, 5, 2),
    Sketcher.Constraint("Equal", 2, 4),
    Sketcher.Constraint("DistanceY", 0, 2, 0, 1, Q("1 in")),
    Sketcher.Constraint("DistanceY", 3, 2, 4, 2, Q("1 in")),
    Sketcher.Constraint("DistanceX", 1, 2, 1, 1, Q("0.25 in")),
    Sketcher.Constraint("DistanceX", -1, 1, 0, 2, 128.8987),
    Sketcher.Constraint("DistanceY", -1, 1, 0, 2, 39.4915),
])
pocket6 = body.newObject("PartDesign::Pocket", "Pocket005")
pocket6.Profile = sketch18
pocket6.Length = Q("0.25 in")
pocket6.Reversed = True

sketch19 = body.newObject("Sketcher::SketchObject", "Sketch018")
sketch19.AttachmentSupport = (doc.getObject("XY_Plane"), [""])
sketch19.MapMode = "FlatFace"
add_polygon(sketch19, [(122.5487, 115.6915), (122.5487, 90.2915), (128.8987, 90.2915), (128.8987, 64.8915), (122.5487, 64.8915), (122.5487, 39.4915), (81.9087, 39.4915), (81.9087, 38.8107), (56.5087, 38.8107), (56.5087, 39.4915), (-203.8413, 39.4915), (-203.8413, 64.8915), (-210.1913, 64.8915), (-210.1913, 90.2915), (-203.8413, 90.2915), (-203.8413, 115.6915), (-172.0913, 115.6915), (-172.0913, 64.8915), (90.7987, 64.8915), (90.7987, 115.6915)])
sketch19.addGeometry(Part.Circle(V(109.8487, 77.5915, 0), V(0, 0, 1), 1.9812), False)
sketch19.addGeometry(Part.Circle(V(-191.1413, 83.9415, 0), V(0, 0, 1), 1.9812), False)
sketch19.addConstraint([
    Sketcher.Constraint("Vertical", 0),
    Sketcher.Constraint("Horizontal", 1),
    Sketcher.Constraint("Vertical", 2),
    Sketcher.Constraint("Horizontal", 3),
    Sketcher.Constraint("Vertical", 4),
    Sketcher.Constraint("Horizontal", 5),
    Sketcher.Constraint("Vertical", 6),
    Sketcher.Constraint("Horizontal", 7),
    Sketcher.Constraint("Vertical", 8),
    Sketcher.Constraint("Horizontal", 9),
    Sketcher.Constraint("Vertical", 10),
    Sketcher.Constraint("Horizontal", 11),
    Sketcher.Constraint("Vertical", 12),
    Sketcher.Constraint("Horizontal", 13),
    Sketcher.Constraint("Vertical", 14),
    Sketcher.Constraint("Horizontal", 15),
    Sketcher.Constraint("Vertical", 16),
    Sketcher.Constraint("Horizontal", 17),
    Sketcher.Constraint("Vertical", 18),
    Sketcher.Constraint("Horizontal", 19),
    Sketcher.Constraint("Equal", 20, 21),
    Sketcher.Constraint("Horizontal", 5, 2, 8, 2),
    Sketcher.Constraint("Horizontal", 3, 2, 10, 2),
    Sketcher.Constraint("Horizontal", 1, 2, 12, 2),
    Sketcher.Constraint("Horizontal", 11, 2, 16, 2),
    Sketcher.Constraint("Horizontal", 15, 2, 18, 2),
    Sketcher.Constraint("Vertical", 0, 2, 3, 2),
    Sketcher.Constraint("Vertical", 10, 2, 13, 2),
    Sketcher.Constraint("Equal", 3, 11),
    Sketcher.Constraint("Equal", 15, 19),
    Sketcher.Constraint("Equal", 7, 0),
    Sketcher.Constraint("Equal", 0, 2),
    Sketcher.Constraint("Equal", 2, 4),
    Sketcher.Constraint("DistanceX", 7, 2, 7, 1, Q("1 in")),
    Sketcher.Constraint("Diameter", 20, Q("0.156 in")),
    Sketcher.Constraint("DistanceX", 5, 2, 5, 1, Q("1.6 in")),
    Sketcher.Constraint("DistanceX", 1, 1, 1, 2, Q("0.25 in")),
    Sketcher.Constraint("DistanceX", 9, 2, 9, 1, Q("10.25 in")),
    Sketcher.Constraint("DistanceX", 15, 1, 15, 2, Q("1.25 in")),
    Sketcher.Constraint("DistanceX", 20, 3, 0, 2, Q("0.5 in")),
    Sketcher.Constraint("DistanceY", 20, 3, 0, 2, Q("0.5 in")),
    Sketcher.Constraint("DistanceX", 21, 3, 1, 2, Q("12.6 in")),
    Sketcher.Constraint("DistanceY", 20, 3, 21, 3, Q("0.25 in")),
    Sketcher.Constraint("DistanceY", 6, 2, 6, 1, Q("0.0268 in")),
    Sketcher.Constraint("DistanceX", -1, 1, 20, 3, 109.8487),
    Sketcher.Constraint("DistanceY", -1, 1, 20, 3, 77.5915),
])
pocket7 = body.newObject("PartDesign::Pocket", "Pocket006")
pocket7.Profile = sketch19
pocket7.Length = Q("1 in")
pocket7.Reversed = True

sketch20 = body.newObject("Sketcher::SketchObject", "Sketch019")
sketch20.AttachmentSupport = (doc.getObject("XY_Plane"), [""])
sketch20.MapMode = "FlatFace"
add_polygon(sketch20, [(-41.2813, 26.7915), (-41.2813, 20.4415), (-203.8413, 20.4415), (-203.8413, 39.4915), (128.8987, 39.4915), (128.8987, 26.7915)])
add_polygon(sketch20, [(-133.9913, 33.1415), (-133.9913, 26.7915), (-108.5913, 26.7915), (-108.5913, 33.1415)])
sketch20.addConstraint([
    Sketcher.Constraint("Vertical", 0),
    Sketcher.Constraint("Horizontal", 1),
    Sketcher.Constraint("Vertical", 2),
    Sketcher.Constraint("Horizontal", 3),
    Sketcher.Constraint("Vertical", 4),
    Sketcher.Constraint("Horizontal", 5),
    Sketcher.Constraint("Vertical", 6),
    Sketcher.Constraint("Horizontal", 7),
    Sketcher.Constraint("Vertical", 8),
    Sketcher.Constraint("Horizontal", 9),
    Sketcher.Constraint("Horizontal", 5, 2, 6, 2),
    Sketcher.Constraint("Equal", 0, 6),
    Sketcher.Constraint("DistanceX", 7, 1, 7, 2, Q("1 in")),
    Sketcher.Constraint("DistanceX", 1, 2, 1, 1, Q("6.4 in")),
    Sketcher.Constraint("DistanceX", 3, 1, 3, 2, Q("13.1 in")),
    Sketcher.Constraint("DistanceY", 4, 2, 4, 1, Q("0.5 in")),
    Sketcher.Constraint("DistanceY", 0, 2, 0, 1, Q("0.25 in")),
    Sketcher.Constraint("DistanceX", 1, 2, 6, 2, Q("2.75 in")),
    Sketcher.Constraint("DistanceX", 0, 2, -1, 1, 41.2813),
    Sketcher.Constraint("DistanceY", -1, 1, 0, 2, 20.4415),
])
pocket8 = body.newObject("PartDesign::Pocket", "Pocket007")
pocket8.Profile = sketch20
pocket8.Length = Q("1 in")
pocket8.Reversed = True

sketch21 = body.newObject("Sketcher::SketchObject", "Sketch020")
sketch21.AttachmentSupport = (doc.getObject("XY_Plane"), [""])
sketch21.MapMode = "FlatFace"
sketch21.AttachmentOffset = App.Placement(V(0, 0, 0.25 * 25.4), App.Rotation())
add_polygon(sketch21, [(128.8987, -157.3585), (128.8987, 26.7915), (-22.2313, 26.7915), (-22.2313, 20.4415), (109.8487, 20.4415), (109.8487, -138.3085), (-22.2313, -138.3085), (-22.2313, -144.6585), (-41.2813, -144.6585), (-41.2813, -157.3585)])
sketch21.addGeometry(Part.Circle(V(122.5487, -138.3085, 0), V(0, 0, 1), 1.9812), False)
sketch21.addGeometry(Part.Circle(V(122.5487, 20.4415, 0), V(0, 0, 1), 1.9812), False)
sketch21.addConstraint([
    Sketcher.Constraint("Vertical", 0),
    Sketcher.Constraint("Horizontal", 1),
    Sketcher.Constraint("Vertical", 2),
    Sketcher.Constraint("Horizontal", 3),
    Sketcher.Constraint("Vertical", 4),
    Sketcher.Constraint("Horizontal", 5),
    Sketcher.Constraint("Vertical", 6),
    Sketcher.Constraint("Horizontal", 7),
    Sketcher.Constraint("Vertical", 8),
    Sketcher.Constraint("Horizontal", 9),
    Sketcher.Constraint("Equal", 10, 11),
    Sketcher.Constraint("Horizontal", 11, 3, 2, 2),
    Sketcher.Constraint("Horizontal", 10, 3, 4, 2),
    Sketcher.Constraint("Vertical", 10, 3, 11, 3),
    Sketcher.Constraint("Vertical", 2, 2, 5, 2),
    Sketcher.Constraint("Equal", 2, 6),
    Sketcher.Constraint("Diameter", 10, Q("0.156 in")),
    Sketcher.Constraint("DistanceX", 3, 1, 3, 2, Q("5.2 in")),
    Sketcher.Constraint("DistanceX", 9, 1, 9, 2, Q("6.7 in")),
    Sketcher.Constraint("DistanceY", 8, 2, 8, 1, Q("0.5 in")),
    Sketcher.Constraint("DistanceX", 1, 2, 1, 1, Q("5.95 in")),
    Sketcher.Constraint("DistanceY", 0, 1, 0, 2, Q("7.25 in")),
    Sketcher.Constraint("DistanceY", 2, 2, 2, 1, Q("0.25 in")),
    Sketcher.Constraint("DistanceX", 1, 2, 11, 3, Q("5.7 in")),
    Sketcher.Constraint("DistanceX", -1, 1, 10, 3, 122.5487),
    Sketcher.Constraint("DistanceY", 10, 3, -1, 1, 138.3085),
])
pocket9 = body.newObject("PartDesign::Pocket", "Pocket008")
pocket9.Profile = sketch21
pocket9.Length = Q("1 in")

sketch22 = body.newObject("Sketcher::SketchObject", "Sketch021")
sketch22.AttachmentSupport = (doc.getObject("XY_Plane"), [""])
sketch22.MapMode = "FlatFace"
sketch22.AttachmentOffset = App.Placement(V(0, 0, 0.25 * 25.4), App.Rotation())
add_polygon(sketch22, [(-41.2813, -144.6585), (-22.2313, -144.6585), (-22.2313, 26.7915), (-41.2813, 26.7915)])
sketch22.addGeometry(Part.Circle(V(-34.9313, -138.3085, 0), V(0, 0, 1), 1.9812), False)
sketch22.addGeometry(Part.Circle(V(-34.9313, 20.4415, 0), V(0, 0, 1), 1.9812), False)
sketch22.addConstraint([
    Sketcher.Constraint("Horizontal", 0),
    Sketcher.Constraint("Vertical", 1),
    Sketcher.Constraint("Horizontal", 2),
    Sketcher.Constraint("Vertical", 3),
    Sketcher.Constraint("Equal", 4, 5),
    Sketcher.Constraint("Vertical", 4, 3, 5, 3),
    Sketcher.Constraint("Diameter", 4, Q("0.156 in")),
    Sketcher.Constraint("DistanceX", 0, 1, 0, 2, Q("0.75 in")),
    Sketcher.Constraint("DistanceY", 1, 1, 1, 2, Q("6.75 in")),
    Sketcher.Constraint("DistanceX", 4, 3, 0, 2, Q("0.5 in")),
    Sketcher.Constraint("DistanceY", 0, 2, 5, 3, Q("6.5 in")),
    Sketcher.Constraint("DistanceY", 4, 3, 1, 2, Q("6.5 in")),
    Sketcher.Constraint("DistanceX", 4, 3, -1, 1, 34.9313),
    Sketcher.Constraint("DistanceY", 4, 3, -1, 1, 138.3085),
])
pad13 = body.newObject("PartDesign::Pad", "Pad012")
pad13.Profile = sketch22
pad13.Length = Q("0.5 in")
pad13.Reversed = True

sketch23 = body.newObject("Sketcher::SketchObject", "Sketch022")
sketch23.AttachmentSupport = (doc.getObject("XY_Plane"), [""])
sketch23.MapMode = "FlatFace"
sketch23.AttachmentOffset = App.Placement(V(0, 0, 0.25 * 25.4), App.Rotation())
sketch23.addGeometry([
    Part.Circle(V(-34.9313, -138.3085, 0), V(0, 0, 1), 1.9812),
    Part.Circle(V(-34.9313, 20.4415, 0), V(0, 0, 1), 1.9812),
], False)
sketch23.addConstraint([
    Sketcher.Constraint("Equal", 0, 1),
    Sketcher.Constraint("Vertical", 0, 3, 1, 3),
    Sketcher.Constraint("Diameter", 0, Q("0.156 in")),
    Sketcher.Constraint("DistanceY", 0, 3, 1, 3, Q("6.25 in")),
    Sketcher.Constraint("DistanceX", 0, 3, -1, 1, 34.9313),
    Sketcher.Constraint("DistanceY", 0, 3, -1, 1, 138.3085),
])
pad14 = body.newObject("PartDesign::Pad", "Pad013")
pad14.Profile = sketch23
pad14.Length = Q("0.5 in")
pad14.Reversed = True

sketch24 = body.newObject("Sketcher::SketchObject", "Sketch023")
sketch24.AttachmentSupport = (doc.getObject("XY_Plane"), [""])
sketch24.MapMode = "FlatFace"
sketch24.AttachmentOffset = App.Placement(V(0, 0, 0.25 * 25.4), App.Rotation())
add_polygon(sketch24, [(-41.2813, -144.6585), (-34.9313, -144.6585), (-34.9313, 26.7915), (-41.2813, 26.7915)])
sketch24.addConstraint([
    Sketcher.Constraint("Horizontal", 0),
    Sketcher.Constraint("Vertical", 1),
    Sketcher.Constraint("Horizontal", 2),
    Sketcher.Constraint("Vertical", 3),
    Sketcher.Constraint("DistanceX", 0, 1, 0, 2, Q("0.25 in")),
    Sketcher.Constraint("DistanceY", 1, 1, 1, 2, Q("6.75 in")),
    Sketcher.Constraint("DistanceX", 0, 2, -1, 1, 34.9313),
    Sketcher.Constraint("DistanceY", 0, 2, -1, 1, 144.6585),
])
pocket10 = body.newObject("PartDesign::Pocket", "Pocket009")
pocket10.Profile = sketch24
pocket10.Length = Q("0.5 in")

sketch25 = body.newObject("Sketcher::SketchObject", "Sketch024")
sketch25.AttachmentSupport = (doc.getObject("XZ_Plane"), [""])
sketch25.MapMode = "FlatFace"
sketch25.AttachmentOffset = App.Placement(V(0, 0, -26.7915), App.Rotation())
add_polygon(sketch25, [(-22.2313, -6.35), (-34.9313, -6.35), (-34.9313, 6.35), (-22.2313, 6.35)])
sketch25.addConstraint([
    Sketcher.Constraint("Horizontal", 0),
    Sketcher.Constraint("Vertical", 1),
    Sketcher.Constraint("Horizontal", 2),
    Sketcher.Constraint("Vertical", 3),
    Sketcher.Constraint("Equal", 2, 1),
    Sketcher.Constraint("DistanceX", 0, 2, 0, 1, Q("0.5 in")),
    Sketcher.Constraint("DistanceY", 0, 2, -1, 1, Q("0.25 in")),
    Sketcher.Constraint("DistanceX", 0, 2, -1, 1, 34.9313),
])
pad15 = body.newObject("PartDesign::Pad", "Pad014")
pad15.Profile = sketch25
pad15.Length = Q("0.5 in")
pad15.Reversed = True

sketch26 = body.newObject("Sketcher::SketchObject", "Sketch025")
sketch26.AttachmentSupport = (doc.getObject("XZ_Plane"), [""])
sketch26.MapMode = "FlatFace"
sketch26.AttachmentOffset = App.Placement(V(0, 0, 144.6585), App.Rotation())
add_polygon(sketch26, [(-22.2313, 6.35), (-34.9313, 6.35), (-34.9313, -6.35), (-22.2313, -6.35)])
sketch26.addConstraint([
    Sketcher.Constraint("Horizontal", 0),
    Sketcher.Constraint("Vertical", 1),
    Sketcher.Constraint("Horizontal", 2),
    Sketcher.Constraint("Vertical", 3),
    Sketcher.Constraint("Equal", 2, 1),
    Sketcher.Constraint("DistanceX", 0, 2, 0, 1, Q("0.5 in")),
    Sketcher.Constraint("DistanceY", -1, 1, 0, 2, Q("0.25 in")),
    Sketcher.Constraint("DistanceX", 0, 2, -1, 1, 34.9313),
])
pad16 = body.newObject("PartDesign::Pad", "Pad015")
pad16.Profile = sketch26
pad16.Length = Q("0.25 in")

sketch27 = body.newObject("Sketcher::SketchObject", "Sketch026")
sketch27.AttachmentSupport = (doc.getObject("YZ_Plane"), [""])
sketch27.MapMode = "FlatFace"
sketch27.AttachmentOffset = App.Placement(V(0, 0, -22.2313), App.Rotation())
add_polygon(sketch27, [(39.4915, 6.35), (-151.0085, 6.35), (-151.0085, -6.35), (39.4915, -6.35)])
sketch27.addConstraint([
    Sketcher.Constraint("Horizontal", 0),
    Sketcher.Constraint("Vertical", 1),
    Sketcher.Constraint("Horizontal", 2),
    Sketcher.Constraint("Vertical", 3),
    Sketcher.Constraint("DistanceX", 0, 2, 0, 1, Q("7.5 in")),
    Sketcher.Constraint("DistanceY", 1, 2, 1, 1, Q("0.5 in")),
    Sketcher.Constraint("DistanceY", -1, 1, 0, 2, Q("0.25 in")),
    Sketcher.Constraint("DistanceX", 0, 2, -1, 1, 151.0085),
])
pad17 = body.newObject("PartDesign::Pad", "Pad016")
pad17.Profile = sketch27
pad17.Length = Q("0.25 in")

sketch28 = body.newObject("Sketcher::SketchObject", "Sketch027")
sketch28.AttachmentSupport = (doc.getObject("XY_Plane"), [""])
sketch28.MapMode = "FlatFace"
sketch28.AttachmentOffset = App.Placement(V(0, 0, -0.25 * 25.4), App.Rotation())
add_polygon(sketch28, [(-15.8813, -151.0085), (-34.9313, -151.0085), (-34.9313, -144.6585), (-15.8813, -144.6585)])
sketch28.addConstraint([
    Sketcher.Constraint("Horizontal", 0),
    Sketcher.Constraint("Vertical", 1),
    Sketcher.Constraint("Horizontal", 2),
    Sketcher.Constraint("Vertical", 3),
    Sketcher.Constraint("DistanceY", 1, 1, 1, 2, Q("0.25 in")),
    Sketcher.Constraint("DistanceX", 0, 2, 0, 1, Q("0.75 in")),
    Sketcher.Constraint("DistanceX", 0, 2, -1, 1, 34.9313),
    Sketcher.Constraint("DistanceY", 0, 2, -1, 1, 151.0085),
])
pocket11 = body.newObject("PartDesign::Pocket", "Pocket010")
pocket11.Profile = sketch28
pocket11.Length = Q("0.5 in")
pocket11.Reversed = True

sketch29 = body.newObject("Sketcher::SketchObject", "Sketch028")
sketch29.AttachmentSupport = (doc.getObject("YZ_Plane"), [""])
sketch29.MapMode = "FlatFace"
sketch29.AttachmentOffset = App.Placement(V(0, 0, -15.8813), App.Rotation())
add_polygon(sketch29, [(39.4915, 6.35), (-144.6585, 6.35), (-144.6585, -6.35), (39.4915, -6.35)])
sketch29.addConstraint([
    Sketcher.Constraint("Horizontal", 0),
    Sketcher.Constraint("Vertical", 1),
    Sketcher.Constraint("Horizontal", 2),
    Sketcher.Constraint("Vertical", 3),
    Sketcher.Constraint("DistanceY", 1, 2, 1, 1, Q("0.5 in")),
    Sketcher.Constraint("DistanceX", 0, 2, 0, 1, Q("7.25 in")),
    Sketcher.Constraint("DistanceY", -1, 1, 0, 2, Q("0.25 in")),
    Sketcher.Constraint("DistanceX", 0, 2, -1, 1, 144.6585),
])
pad18 = body.newObject("PartDesign::Pad", "Pad017")
pad18.Profile = sketch29
pad18.Length = Q("0.25 in")

sketch30 = body.newObject("Sketcher::SketchObject", "Sketch029")
sketch30.AttachmentSupport = (doc.getObject("XZ_Plane"), [""])
sketch30.MapMode = "FlatFace"
sketch30.AttachmentOffset = App.Placement(V(0, 0, -39.4915), App.Rotation())
add_polygon(sketch30, [(-9.5313, -6.35), (-34.9313, -6.35), (-34.9313, 6.35), (-9.5313, 6.35)])
sketch30.addConstraint([
    Sketcher.Constraint("Horizontal", 0),
    Sketcher.Constraint("Vertical", 1),
    Sketcher.Constraint("Horizontal", 2),
    Sketcher.Constraint("Vertical", 3),
    Sketcher.Constraint("DistanceX", 0, 2, 0, 1, Q("1 in")),
    Sketcher.Constraint("DistanceY", 1, 1, 1, 2, Q("0.5 in")),
    Sketcher.Constraint("DistanceY", 0, 2, -1, 1, Q("0.25 in")),
    Sketcher.Constraint("DistanceX", 0, 2, -1, 1, 34.9313),
])
pad19 = body.newObject("PartDesign::Pad", "Pad018")
pad19.Profile = sketch30
pad19.Length = Q("0.5 in")
pad19.Reversed = True

sketch31 = body.newObject("Sketcher::SketchObject", "Sketch030")
sketch31.AttachmentSupport = (doc.getObject("XZ_Plane"), [""])
sketch31.MapMode = "FlatFace"
sketch31.AttachmentOffset = App.Placement(V(0, 0, -52.1915), App.Rotation())
add_polygon(sketch31, [(-9.5313, 6.35), (-9.5313, -6.35), (-34.9313, -6.35), (-34.9313, 6.35)])
sketch31.addConstraint([
    Sketcher.Constraint("Vertical", 0),
    Sketcher.Constraint("Horizontal", 1),
    Sketcher.Constraint("Vertical", 2),
    Sketcher.Constraint("Horizontal", 3),
    Sketcher.Constraint("DistanceX", 1, 2, 1, 1, Q("1 in")),
    Sketcher.Constraint("DistanceY", 0, 2, 0, 1, Q("0.5 in")),
    Sketcher.Constraint("DistanceY", 0, 2, -1, 1, Q("0.25 in")),
    Sketcher.Constraint("DistanceX", 0, 2, -1, 1, 9.5313),
])
pocket12 = body.newObject("PartDesign::Pocket", "Pocket011")
pocket12.Profile = sketch31
pocket12.Length = Q("0.25 in")
pocket12.Reversed = True

sketch32 = body.newObject("Sketcher::SketchObject", "Sketch031")
sketch32.AttachmentSupport = (doc.getObject("XZ_Plane"), [""])
sketch32.MapMode = "FlatFace"
sketch32.AttachmentOffset = App.Placement(V(0, 0, -45.8415), App.Rotation())
add_polygon(sketch32, [(-9.5313, -6.35), (-34.9313, -6.35), (-34.9313, 6.35), (-9.5313, 6.35)])
sketch32.addConstraint([
    Sketcher.Constraint("Horizontal", 0),
    Sketcher.Constraint("Vertical", 1),
    Sketcher.Constraint("Horizontal", 2),
    Sketcher.Constraint("Vertical", 3),
    Sketcher.Constraint("DistanceX", 0, 2, 0, 1, Q("1 in")),
    Sketcher.Constraint("DistanceY", 1, 1, 1, 2, Q("0.5 in")),
    Sketcher.Constraint("DistanceY", 0, 2, -1, 1, Q("0.25 in")),
    Sketcher.Constraint("DistanceX", 0, 2, -1, 1, 34.9313),
])
pocket13 = body.newObject("PartDesign::Pocket", "Pocket012")
pocket13.Profile = sketch32
pocket13.Length = Q("0.75 in")
pocket13.Reversed = True

doc.recompute()
